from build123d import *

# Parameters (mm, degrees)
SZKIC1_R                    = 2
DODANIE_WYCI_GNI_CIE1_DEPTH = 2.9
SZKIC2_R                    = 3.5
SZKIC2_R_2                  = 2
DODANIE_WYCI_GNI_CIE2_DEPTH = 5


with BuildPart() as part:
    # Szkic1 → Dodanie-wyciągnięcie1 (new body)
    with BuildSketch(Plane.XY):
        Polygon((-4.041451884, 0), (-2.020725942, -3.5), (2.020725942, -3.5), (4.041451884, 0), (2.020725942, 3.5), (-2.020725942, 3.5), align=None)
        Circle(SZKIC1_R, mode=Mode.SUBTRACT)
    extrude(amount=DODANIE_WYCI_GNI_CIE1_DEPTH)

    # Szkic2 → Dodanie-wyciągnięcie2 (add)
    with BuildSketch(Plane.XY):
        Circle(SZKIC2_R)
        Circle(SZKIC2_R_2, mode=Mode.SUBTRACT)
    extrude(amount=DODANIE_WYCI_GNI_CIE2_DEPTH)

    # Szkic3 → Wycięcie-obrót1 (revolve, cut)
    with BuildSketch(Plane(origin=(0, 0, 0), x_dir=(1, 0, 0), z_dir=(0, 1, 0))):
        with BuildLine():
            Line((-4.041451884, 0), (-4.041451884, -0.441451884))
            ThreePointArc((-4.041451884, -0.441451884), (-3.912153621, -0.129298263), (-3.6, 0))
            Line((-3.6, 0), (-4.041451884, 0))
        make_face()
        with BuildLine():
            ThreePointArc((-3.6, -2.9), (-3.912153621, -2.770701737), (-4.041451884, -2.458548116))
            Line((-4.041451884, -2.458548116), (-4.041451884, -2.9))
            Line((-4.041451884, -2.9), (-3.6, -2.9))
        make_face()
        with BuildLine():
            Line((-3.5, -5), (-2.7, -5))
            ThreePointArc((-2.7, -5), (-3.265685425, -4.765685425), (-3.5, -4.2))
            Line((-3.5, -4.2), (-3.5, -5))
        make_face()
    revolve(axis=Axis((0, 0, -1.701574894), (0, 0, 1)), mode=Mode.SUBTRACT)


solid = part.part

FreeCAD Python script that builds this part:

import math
import FreeCAD as App
import Part
import Sketcher
Q = App.Units.Quantity


def add_polygon(sketch, points):
    """Adds a closed chain of lines whose ends are joined by coincident constraints."""
    first, n = sketch.GeometryCount, len(points)
    for a, b in zip(points, points[1:] + points[:1]):
        sketch.addGeometry(Part.LineSegment(App.Vector(*a, 0), App.Vector(*b, 0)), False)
    for i in range(n):
        sketch.addConstraint(Sketcher.Constraint("Coincident", first + i, 2, first + (i + 1) % n, 1))

doc = App.newDocument("Part")
body = doc.addObject("PartDesign::Body", "Body")

sketch1 = body.newObject("Sketcher::SketchObject", "Sketch")
sketch1.AttachmentSupport = (doc.getObject("XY_Plane"), [""])
sketch1.MapMode = "FlatFace"
add_polygon(sketch1, [(-4, 0), (-2, -3.5), (2, -3.5), (4, 0), (2, 3.5), (-2, 3.5)])
sketch1.addGeometry(Part.Circle(App.Vector(0, 0, 0), App.Vector(0, 0, 1), 2), False)
sketch1.addConstraint(Sketcher.Constraint("Horizontal", 1))
sketch1.addConstraint(Sketcher.Constraint("Horizontal", 4))
sketch1.addConstraint(Sketcher.Constraint("Coincident", 6, 3, -1, 1))
sketch1.addConstraint(Sketcher.Constraint("Symmetric", 0, 2, 3, 2, -1, 1))
sketch1.addConstraint(Sketcher.Constraint("Symmetric", 2, 2, 5, 2, -1, 1))
sketch1.addConstraint(Sketcher.Constraint("PointOnObject", 2, 2, -1))
sketch1.addConstraint(Sketcher.Constraint("Parallel", 2, 5))
sketch1.addConstraint(Sketcher.Constraint("Vertical", 1, 2, 3, 2))
sketch1.addConstraint(Sketcher.Constraint("Diameter", 6, 4.0))
sketch1.addConstraint(Sketcher.Constraint("Angle", 0, Q("-60 deg")))
sketch1.addConstraint(Sketcher.Constraint("DistanceY", 1, 2, 3, 2, 7.0))
sketch1.addConstraint(Sketcher.Constraint("DistanceX", 1, 1, 1, 2, 4.041452))
pad1 = body.newObject("PartDesign::Pad", "Pad")
pad1.Profile = sketch1
pad1.Length = 2.9

sketch2 = body.newObject("Sketcher::SketchObject", "Sketch001")
sketch2.AttachmentSupport = (doc.getObject("XY_Plane"), [""])
sketch2.MapMode = "FlatFace"
sketch2.addGeometry(Part.Circle(App.Vector(0, 0, 0), App.Vector(0, 0, 1), 3.5), False)
sketch2.addGeometry(Part.Circle(App.Vector(0, 0, 0), App.Vector(0, 0, 1), 2), False)
sketch2.addConstraint(Sketcher.Constraint("Coincident", 0, 3, -1, 1))
sketch2.addConstraint(Sketcher.Constraint("Coincident", 1, 3, -1, 1))
sketch2.addConstraint(Sketcher.Constraint("Diameter", 0, 7.0))
sketch2.addConstraint(Sketcher.Constraint("Diameter", 1, 4.0))
pad2 = body.newObject("PartDesign::Pad", "Pad001")
pad2.Profile = sketch2
pad2.Length = 5

sketch3 = body.newObject("Sketcher::SketchObject", "Sketch002")
sketch3.AttachmentSupport = (doc.getObject("XZ_Plane"), [""])
sketch3.MapMode = "FlatFace"
sketch3.addGeometry(Part.LineSegment(App.Vector(-4.04, 0, 0), App.Vector(-4.04, 0.44, 0)), False)
sketch3.addGeometry(Part.ArcOfCircle(Part.Circle(App.Vector(-3.6, 0.44, 0), App.Vector(0, 0, 1), 0.44), math.radians(180), math.radians(270)), False)
sketch3.addGeometry(Part.LineSegment(App.Vector(-3.6, 0, 0), App.Vector(-4.04, 0, 0)), False)
sketch3.addGeometry(Part.ArcOfCircle(Part.Circle(App.Vector(-3.6, 2.46, 0), App.Vector(0, 0, 1), 0.44), math.radians(90), math.radians(180)), False)
sketch3.addGeometry(Part.LineSegment(App.Vector(-4.04, 2.46, 0), App.Vector(-4.04, 2.9, 0)), False)
sketch3.addGeometry(Part.LineSegment(App.Vector(-4.04, 2.9, 0), App.Vector(-3.6, 2.9, 0)), False)
sketch3.addGeometry(Part.LineSegment(App.Vector(-3.5, 5, 0), App.Vector(-2.7, 5, 0)), False)
sketch3.addGeometry(Part.ArcOfCircle(Part.Circle(App.Vector(-2.7, 4.2, 0), App.Vector(0, 0, 1), 0.8), math.radians(90), math.radians(180)), False)
sketch3.addGeometry(Part.LineSegment(App.Vector(-3.5, 4.2, 0), App.Vector(-3.5, 5, 0)), False)
sketch3.addConstraint(Sketcher.Constraint("Tangent", 0, 2, 1, 1))
sketch3.addConstraint(Sketcher.Constraint("Tangent", 1, 2, 2, 1))
sketch3.addConstraint(Sketcher.Constraint("Coincident", 2, 2, 0, 1))
sketch3.addConstraint(Sketcher.Constraint("Tangent", 3, 2, 4, 1))
sketch3.addConstraint(Sketcher.Constraint("Coincident", 4, 2, 5, 1))
sketch3.addConstraint(Sketcher.Constraint("Tangent", 5, 2, 3, 1))
sketch3.addConstraint(Sketcher.Constraint("Tangent", 6, 2, 7, 1))
sketch3.addConstraint(Sketcher.Constraint("Tangent", 7, 2, 8, 1))
sketch3.addConstraint(Sketcher.Constraint("Coincident", 8, 2, 6, 1))
sketch3.addConstraint(Sketcher.Constraint("Vertical", 0))
sketch3.addConstraint(Sketcher.Constraint("Horizontal", 2))
sketch3.addConstraint(Sketcher.Constraint("Vertical", 4))
sketch3.addConstraint(Sketcher.Constraint("Horizontal", 5))
sketch3.addConstraint(Sketcher.Constraint("Horizontal", 6))
sketch3.addConstraint(Sketcher.Constraint("Vertical", 8))
sketch3.addConstraint(Sketcher.Constraint("Equal", 1, 3))
sketch3.addConstraint(Sketcher.Constraint("PointOnObject", 1, 2, -1))
sketch3.addConstraint(Sketcher.Constraint("Vertical", 1, 3, 3, 3))
sketch3.addConstraint(Sketcher.Constraint("Radius", 7, 0.8))
sketch3.addConstraint(Sketcher.Constraint("DistanceY", -1, 1, 6, 2, 5.0))
sketch3.addConstraint(Sketcher.Constraint("DistanceX", 1, 3, -1, 1, 3.6))
sketch3.addConstraint(Sketcher.Constraint("DistanceX", 7, 3, -1, 1, 2.7))
sketch3.addConstraint(Sketcher.Constraint("DistanceY", -1, 1, 4, 2, 2.9))
sketch3.addConstraint(Sketcher.Constraint("Radius", 1, 0.441452))
groove = body.newObject("PartDesign::Groove", "Groove")
groove.Profile = sketch3
groove.ReferenceAxis = (sketch3, ["V_Axis"])
groove.Angle = 360

doc.recompute()
